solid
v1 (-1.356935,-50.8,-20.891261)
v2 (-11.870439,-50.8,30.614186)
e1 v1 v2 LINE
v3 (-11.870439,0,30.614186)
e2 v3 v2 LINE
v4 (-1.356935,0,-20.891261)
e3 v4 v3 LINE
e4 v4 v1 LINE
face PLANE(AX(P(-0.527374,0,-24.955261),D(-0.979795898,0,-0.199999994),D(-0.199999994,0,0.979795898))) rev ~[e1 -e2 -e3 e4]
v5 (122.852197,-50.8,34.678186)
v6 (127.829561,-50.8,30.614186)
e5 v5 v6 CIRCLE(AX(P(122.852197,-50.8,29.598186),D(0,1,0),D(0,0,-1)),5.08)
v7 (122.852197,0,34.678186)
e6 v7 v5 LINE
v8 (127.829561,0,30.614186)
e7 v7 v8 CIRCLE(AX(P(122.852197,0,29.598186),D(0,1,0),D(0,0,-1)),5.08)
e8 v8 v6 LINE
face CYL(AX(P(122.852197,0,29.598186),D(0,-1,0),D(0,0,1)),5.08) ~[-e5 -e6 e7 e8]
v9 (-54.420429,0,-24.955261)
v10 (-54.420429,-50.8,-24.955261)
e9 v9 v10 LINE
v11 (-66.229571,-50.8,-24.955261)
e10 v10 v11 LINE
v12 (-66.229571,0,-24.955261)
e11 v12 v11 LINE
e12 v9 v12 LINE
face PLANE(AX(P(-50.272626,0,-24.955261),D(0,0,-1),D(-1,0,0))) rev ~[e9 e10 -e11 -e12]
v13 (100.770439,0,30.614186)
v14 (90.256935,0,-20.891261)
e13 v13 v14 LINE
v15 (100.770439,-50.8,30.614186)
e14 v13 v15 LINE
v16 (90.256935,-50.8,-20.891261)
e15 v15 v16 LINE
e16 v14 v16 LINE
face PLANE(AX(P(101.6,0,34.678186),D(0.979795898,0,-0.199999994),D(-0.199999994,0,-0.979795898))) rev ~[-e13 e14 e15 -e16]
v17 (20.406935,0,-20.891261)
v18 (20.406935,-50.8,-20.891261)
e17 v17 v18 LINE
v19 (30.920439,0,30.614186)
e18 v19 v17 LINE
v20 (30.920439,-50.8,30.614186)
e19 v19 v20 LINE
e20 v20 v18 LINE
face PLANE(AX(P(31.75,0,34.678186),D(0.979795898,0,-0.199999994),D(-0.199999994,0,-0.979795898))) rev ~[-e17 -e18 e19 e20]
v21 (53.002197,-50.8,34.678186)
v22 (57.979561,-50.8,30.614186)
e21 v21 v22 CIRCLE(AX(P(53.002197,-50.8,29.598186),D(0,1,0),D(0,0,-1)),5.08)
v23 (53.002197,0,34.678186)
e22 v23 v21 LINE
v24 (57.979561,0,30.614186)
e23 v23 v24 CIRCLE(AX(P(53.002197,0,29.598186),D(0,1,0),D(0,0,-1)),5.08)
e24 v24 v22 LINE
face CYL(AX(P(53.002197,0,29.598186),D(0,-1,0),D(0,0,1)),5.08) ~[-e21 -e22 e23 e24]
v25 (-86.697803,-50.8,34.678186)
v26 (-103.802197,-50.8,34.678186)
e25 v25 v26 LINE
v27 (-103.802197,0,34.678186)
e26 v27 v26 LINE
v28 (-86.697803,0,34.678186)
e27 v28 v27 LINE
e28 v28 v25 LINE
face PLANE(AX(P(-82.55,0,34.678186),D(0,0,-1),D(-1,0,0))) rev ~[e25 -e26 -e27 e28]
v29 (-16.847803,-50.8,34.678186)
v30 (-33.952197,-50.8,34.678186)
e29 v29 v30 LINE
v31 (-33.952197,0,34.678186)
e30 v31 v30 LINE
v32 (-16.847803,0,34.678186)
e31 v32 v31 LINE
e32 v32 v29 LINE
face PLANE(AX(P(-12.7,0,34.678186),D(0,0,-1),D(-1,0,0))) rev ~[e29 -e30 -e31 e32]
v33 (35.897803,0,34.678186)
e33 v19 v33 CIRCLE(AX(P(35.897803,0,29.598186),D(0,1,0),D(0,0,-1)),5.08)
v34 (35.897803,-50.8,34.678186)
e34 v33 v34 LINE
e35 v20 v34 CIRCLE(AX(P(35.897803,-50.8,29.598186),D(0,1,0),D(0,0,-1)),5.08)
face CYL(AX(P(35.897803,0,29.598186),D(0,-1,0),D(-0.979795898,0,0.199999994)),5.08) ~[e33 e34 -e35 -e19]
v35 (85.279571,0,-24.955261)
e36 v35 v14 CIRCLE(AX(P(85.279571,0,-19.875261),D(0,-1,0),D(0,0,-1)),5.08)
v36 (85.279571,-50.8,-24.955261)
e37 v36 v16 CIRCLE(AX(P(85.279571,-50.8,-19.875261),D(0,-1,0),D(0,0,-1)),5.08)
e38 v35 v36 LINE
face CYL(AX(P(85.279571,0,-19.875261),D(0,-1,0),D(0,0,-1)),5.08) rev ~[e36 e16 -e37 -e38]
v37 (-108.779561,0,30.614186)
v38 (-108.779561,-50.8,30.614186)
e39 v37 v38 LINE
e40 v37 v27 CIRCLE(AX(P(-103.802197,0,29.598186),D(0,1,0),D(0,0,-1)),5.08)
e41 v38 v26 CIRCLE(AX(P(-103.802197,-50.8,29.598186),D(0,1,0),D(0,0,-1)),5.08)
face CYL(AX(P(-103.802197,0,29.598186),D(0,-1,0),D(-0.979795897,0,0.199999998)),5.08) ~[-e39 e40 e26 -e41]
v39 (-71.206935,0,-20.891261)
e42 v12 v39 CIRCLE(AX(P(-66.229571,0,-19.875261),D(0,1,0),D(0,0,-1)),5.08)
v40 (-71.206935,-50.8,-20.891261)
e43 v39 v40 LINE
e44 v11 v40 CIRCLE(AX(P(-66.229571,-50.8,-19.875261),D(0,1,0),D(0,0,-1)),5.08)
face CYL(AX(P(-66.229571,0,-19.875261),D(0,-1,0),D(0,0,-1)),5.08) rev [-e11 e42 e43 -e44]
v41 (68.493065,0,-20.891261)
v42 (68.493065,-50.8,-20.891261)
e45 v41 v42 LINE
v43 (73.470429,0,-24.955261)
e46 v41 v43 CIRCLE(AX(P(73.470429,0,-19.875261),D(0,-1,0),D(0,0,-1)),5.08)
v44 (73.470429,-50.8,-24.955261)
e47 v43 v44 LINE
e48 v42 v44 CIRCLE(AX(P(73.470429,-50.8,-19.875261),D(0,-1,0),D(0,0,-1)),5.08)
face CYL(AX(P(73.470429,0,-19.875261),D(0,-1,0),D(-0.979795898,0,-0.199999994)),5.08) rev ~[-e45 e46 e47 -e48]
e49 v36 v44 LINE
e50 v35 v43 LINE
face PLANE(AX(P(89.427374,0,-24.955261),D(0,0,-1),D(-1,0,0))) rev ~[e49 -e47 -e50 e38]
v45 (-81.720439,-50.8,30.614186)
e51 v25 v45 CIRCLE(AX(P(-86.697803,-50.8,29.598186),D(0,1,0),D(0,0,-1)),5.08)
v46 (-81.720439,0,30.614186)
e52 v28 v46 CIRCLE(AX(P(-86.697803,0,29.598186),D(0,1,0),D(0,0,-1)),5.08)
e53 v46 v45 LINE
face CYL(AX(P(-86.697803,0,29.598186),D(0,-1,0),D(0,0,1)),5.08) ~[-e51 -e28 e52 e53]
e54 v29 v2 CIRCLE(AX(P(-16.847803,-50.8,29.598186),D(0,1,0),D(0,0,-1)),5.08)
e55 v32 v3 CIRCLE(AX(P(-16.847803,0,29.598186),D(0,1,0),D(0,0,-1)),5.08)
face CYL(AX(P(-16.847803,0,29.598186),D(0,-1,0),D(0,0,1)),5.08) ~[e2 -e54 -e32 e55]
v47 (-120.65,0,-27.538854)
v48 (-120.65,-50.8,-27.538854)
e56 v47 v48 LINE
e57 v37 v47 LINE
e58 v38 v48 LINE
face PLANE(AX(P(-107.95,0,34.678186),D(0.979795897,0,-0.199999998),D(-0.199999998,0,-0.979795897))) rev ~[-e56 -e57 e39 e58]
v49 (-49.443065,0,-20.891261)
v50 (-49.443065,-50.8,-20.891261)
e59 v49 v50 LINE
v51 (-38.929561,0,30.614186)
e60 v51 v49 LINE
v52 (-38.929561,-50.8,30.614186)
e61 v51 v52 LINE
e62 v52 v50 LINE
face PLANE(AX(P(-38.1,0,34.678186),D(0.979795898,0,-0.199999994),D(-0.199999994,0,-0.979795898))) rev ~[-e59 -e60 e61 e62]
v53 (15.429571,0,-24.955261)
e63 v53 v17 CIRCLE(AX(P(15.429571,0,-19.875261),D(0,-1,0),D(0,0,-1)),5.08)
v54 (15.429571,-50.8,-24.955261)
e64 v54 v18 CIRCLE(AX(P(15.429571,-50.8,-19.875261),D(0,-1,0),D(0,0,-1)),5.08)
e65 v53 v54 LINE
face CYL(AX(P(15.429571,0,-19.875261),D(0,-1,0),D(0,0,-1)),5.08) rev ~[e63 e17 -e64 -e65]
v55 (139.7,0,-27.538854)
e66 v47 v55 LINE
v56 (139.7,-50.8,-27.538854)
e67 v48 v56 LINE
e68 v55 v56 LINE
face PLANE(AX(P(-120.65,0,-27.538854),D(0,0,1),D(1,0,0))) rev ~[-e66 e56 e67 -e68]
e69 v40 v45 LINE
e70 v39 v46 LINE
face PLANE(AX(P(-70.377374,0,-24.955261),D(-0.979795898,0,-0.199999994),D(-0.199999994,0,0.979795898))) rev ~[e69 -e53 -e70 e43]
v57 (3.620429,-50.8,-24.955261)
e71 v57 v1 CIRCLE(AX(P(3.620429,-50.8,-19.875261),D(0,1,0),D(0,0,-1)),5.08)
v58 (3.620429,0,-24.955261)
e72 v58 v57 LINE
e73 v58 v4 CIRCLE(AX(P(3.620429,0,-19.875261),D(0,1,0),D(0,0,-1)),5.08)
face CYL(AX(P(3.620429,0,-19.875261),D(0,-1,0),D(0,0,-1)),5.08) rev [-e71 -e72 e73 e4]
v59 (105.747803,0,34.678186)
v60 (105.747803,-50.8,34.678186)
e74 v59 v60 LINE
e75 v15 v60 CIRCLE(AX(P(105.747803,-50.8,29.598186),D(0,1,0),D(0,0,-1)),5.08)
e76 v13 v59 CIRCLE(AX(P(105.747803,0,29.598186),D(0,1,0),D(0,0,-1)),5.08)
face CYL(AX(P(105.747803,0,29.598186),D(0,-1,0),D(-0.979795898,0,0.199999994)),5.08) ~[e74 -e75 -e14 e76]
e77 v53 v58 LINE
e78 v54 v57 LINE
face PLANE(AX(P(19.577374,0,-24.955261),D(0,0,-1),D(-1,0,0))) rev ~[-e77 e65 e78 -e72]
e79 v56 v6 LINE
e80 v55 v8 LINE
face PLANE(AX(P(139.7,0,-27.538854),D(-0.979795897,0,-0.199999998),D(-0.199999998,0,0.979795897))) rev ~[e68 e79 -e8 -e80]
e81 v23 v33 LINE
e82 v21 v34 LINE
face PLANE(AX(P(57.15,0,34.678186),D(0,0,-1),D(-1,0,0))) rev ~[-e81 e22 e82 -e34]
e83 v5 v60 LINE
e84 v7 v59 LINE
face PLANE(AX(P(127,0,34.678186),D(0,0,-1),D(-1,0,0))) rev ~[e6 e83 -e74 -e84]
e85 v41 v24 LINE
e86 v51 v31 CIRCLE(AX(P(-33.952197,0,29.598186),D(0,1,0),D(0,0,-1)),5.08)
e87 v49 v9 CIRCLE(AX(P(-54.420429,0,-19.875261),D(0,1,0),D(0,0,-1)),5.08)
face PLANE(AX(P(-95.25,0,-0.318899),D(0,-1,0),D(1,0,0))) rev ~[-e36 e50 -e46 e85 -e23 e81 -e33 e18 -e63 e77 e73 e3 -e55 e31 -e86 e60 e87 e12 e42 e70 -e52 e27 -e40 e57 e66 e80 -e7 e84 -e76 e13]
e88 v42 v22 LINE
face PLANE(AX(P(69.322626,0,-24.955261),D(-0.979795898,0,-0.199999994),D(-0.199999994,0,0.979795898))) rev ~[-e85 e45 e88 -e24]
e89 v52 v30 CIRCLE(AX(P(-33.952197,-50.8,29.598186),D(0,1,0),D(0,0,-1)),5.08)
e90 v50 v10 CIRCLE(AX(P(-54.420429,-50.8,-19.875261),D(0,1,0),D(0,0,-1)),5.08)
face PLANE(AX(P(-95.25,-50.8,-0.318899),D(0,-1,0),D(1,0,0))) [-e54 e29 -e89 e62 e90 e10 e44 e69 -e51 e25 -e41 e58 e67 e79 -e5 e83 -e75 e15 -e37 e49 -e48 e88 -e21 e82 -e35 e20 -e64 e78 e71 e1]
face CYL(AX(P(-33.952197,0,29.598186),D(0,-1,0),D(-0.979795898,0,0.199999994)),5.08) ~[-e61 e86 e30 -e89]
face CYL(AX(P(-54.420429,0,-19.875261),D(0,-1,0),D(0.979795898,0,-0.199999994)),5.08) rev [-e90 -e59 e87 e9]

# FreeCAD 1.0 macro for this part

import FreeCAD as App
import Part
import Sketcher
from FreeCAD import Vector
Q = App.Units.Quantity


def edges_at(feature, points):
    """Names of the edges that pass closest to the given points."""
    edges = feature.Shape.Edges
    near = lambda p: min(range(len(edges)), key=lambda i: edges[i].distToShape(Part.Vertex(*p))[0])
    return sorted({f"Edge{near(p) + 1}" for p in points})


def add_polygon(sketch, points):
    """Adds a closed chain of lines whose ends are joined by coincident constraints."""
    first, n = sketch.GeometryCount, len(points)
    for a, b in zip(points, points[1:] + points[:1]):
        sketch.addGeometry(Part.LineSegment(App.Vector(*a, 0), App.Vector(*b, 0)), False)
    for i in range(n):
        sketch.addConstraint(Sketcher.Constraint("Coincident", first + i, 2, first + (i + 1) % n, 1))

doc = App.newDocument("Part")
body = doc.addObject("PartDesign::Body", "Body")

# Sketch on XZ plane
sketch1 = body.newObject("Sketcher::SketchObject", "Sketch")
sketch1.AttachmentSupport = (doc.getObject("XZ_Plane"), [""])
sketch1.MapMode = "FlatFace"
add_polygon(sketch1, [(-107.95, 34.678186), (-120.65, -27.538854), (139.7, -27.538854), (127, 34.678186), (101.6, 34.678186), (89.427374, -24.955261), (69.322626, -24.955261), (57.15, 34.678186), (31.75, 34.678186), (19.577374, -24.955261), (-0.527374, -24.955261), (-12.7, 34.678186), (-38.1, 34.678186), (-50.272626, -24.955261), (-70.377374, -24.955261), (-82.55, 34.678186)])  # lines 0-15
sketch1.addConstraint(Sketcher.Constraint("Horizontal", 1))
sketch1.addConstraint(Sketcher.Constraint("Horizontal", 3))
sketch1.addConstraint(Sketcher.Constraint("Horizontal", 5))
sketch1.addConstraint(Sketcher.Constraint("Horizontal", 7))
sketch1.addConstraint(Sketcher.Constraint("Horizontal", 9))
sketch1.addConstraint(Sketcher.Constraint("Horizontal", 11))
sketch1.addConstraint(Sketcher.Constraint("Horizontal", 13))
sketch1.addConstraint(Sketcher.Constraint("Horizontal", 15))
sketch1.addConstraint(Sketcher.Constraint("Parallel", 0, 4))
sketch1.addConstraint(Sketcher.Constraint("Parallel", 2, 6))
sketch1.addConstraint(Sketcher.Constraint("Parallel", 4, 8))
sketch1.addConstraint(Sketcher.Constraint("Parallel", 6, 10))
sketch1.addConstraint(Sketcher.Constraint("Parallel", 8, 12))
sketch1.addConstraint(Sketcher.Constraint("Parallel", 10, 14))
sketch1.addConstraint(Sketcher.Constraint("Horizontal", 3, 2, 6, 2))
sketch1.addConstraint(Sketcher.Constraint("Horizontal", 5, 2, 8, 2))
sketch1.addConstraint(Sketcher.Constraint("Horizontal", 7, 2, 10, 2))
sketch1.addConstraint(Sketcher.Constraint("Horizontal", 9, 2, 12, 2))
sketch1.addConstraint(Sketcher.Constraint("Horizontal", 11, 2, 14, 2))
sketch1.addConstraint(Sketcher.Constraint("Equal", 3, 7))
sketch1.addConstraint(Sketcher.Constraint("Equal", 5, 9))
sketch1.addConstraint(Sketcher.Constraint("Equal", 7, 11))
sketch1.addConstraint(Sketcher.Constraint("Equal", 9, 13))
sketch1.addConstraint(Sketcher.Constraint("Equal", 11, 15))
sketch1.addConstraint(Sketcher.Constraint("Equal", 0, 2))
sketch1.addConstraint(Sketcher.Constraint("DistanceX", 3, 2, 3, 1, Q("1 in")))
sketch1.addConstraint(Sketcher.Constraint("DistanceX", -1, 1, 2, 2, Q("5 in")))
sketch1.addConstraint(Sketcher.Constraint("Distance", 0, Q("2.5 in")))
sketch1.addConstraint(Sketcher.Constraint("DistanceX", 1, 1, 1, 2, Q("10.25 in")))
sketch1.addConstraint(Sketcher.Constraint("DistanceX", -1, 1, 1, 2, Q("5.5 in")))
sketch1.addConstraint(Sketcher.Constraint("DistanceX", 5, 2, 5, 1, 20.104748))
sketch1.addConstraint(Sketcher.Constraint("DistanceY", 4, 2, -1, 1, 24.955261))
pad1 = body.newObject("PartDesign::Pad", "Pad")
pad1.Profile = sketch1
pad1.Length = Q("2 in")
doc.recompute()

fillet = body.newObject("PartDesign::Fillet", "Fillet")
fillet.Base = (pad1, edges_at(pad1, [(-50.273, -25.4, -24.955)]))
fillet.Radius = Q("0.2 in")
doc.recompute()

fillet2 = body.newObject("PartDesign::Fillet", "Fillet001")
fillet2.Base = (fillet, edges_at(fillet, [(-70.377, -25.4, -24.955)]))
fillet2.Radius = Q("0.2 in")
doc.recompute()

fillet3 = body.newObject("PartDesign::Fillet", "Fillet002")
fillet3.Base = (fillet2, edges_at(fillet2, [(19.577, -25.4, -24.955)]))
fillet3.Radius = Q("0.2 in")
doc.recompute()

fillet4 = body.newObject("PartDesign::Fillet", "Fillet003")
fillet4.Base = (fillet3, edges_at(fillet3, [(-0.527, -25.4, -24.955)]))
fillet4.Radius = Q("0.2 in")
doc.recompute()

fillet5 = body.newObject("PartDesign::Fillet", "Fillet004")
fillet5.Base = (fillet4, edges_at(fillet4, [(69.323, -25.4, -24.955)]))
fillet5.Radius = Q("0.2 in")
doc.recompute()

fillet6 = body.newObject("PartDesign::Fillet", "Fillet005")
fillet6.Base = (fillet5, edges_at(fillet5, [(89.427, -25.4, -24.955)]))
fillet6.Radius = Q("0.2 in")
doc.recompute()

fillet7 = body.newObject("PartDesign::Fillet", "Fillet006")
fillet7.Base = (fillet6, edges_at(fillet6, [(-82.55, -25.4, 34.678)]))
fillet7.Radius = Q("0.2 in")
doc.recompute()

fillet8 = body.newObject("PartDesign::Fillet", "Fillet007")
fillet8.Base = (fillet7, edges_at(fillet7, [(-38.1, -25.4, 34.678)]))
fillet8.Radius = Q("0.2 in")
doc.recompute()

fillet9 = body.newObject("PartDesign::Fillet", "Fillet008")
fillet9.Base = (fillet8, edges_at(fillet8, [(-12.7, -25.4, 34.678)]))
fillet9.Radius = Q("0.2 in")
doc.recompute()

fillet10 = body.newObject("PartDesign::Fillet", "Fillet009")
fillet10.Base = (fillet9, edges_at(fillet9, [(31.75, -25.4, 34.678)]))
fillet10.Radius = Q("0.2 in")
doc.recompute()

fillet11 = body.newObject("PartDesign::Fillet", "Fillet010")
fillet11.Base = (fillet10, edges_at(fillet10, [(57.15, -25.4, 34.678)]))
fillet11.Radius = Q("0.2 in")
doc.recompute()

fillet12 = body.newObject("PartDesign::Fillet", "Fillet011")
fillet12.Base = (fillet11, edges_at(fillet11, [(101.6, -25.4, 34.678)]))
fillet12.Radius = Q("0.2 in")
doc.recompute()

fillet13 = body.newObject("PartDesign::Fillet", "Fillet012")
fillet13.Base = (fillet12, edges_at(fillet12, [(127, -25.4, 34.678)]))
fillet13.Radius = Q("0.2 in")
doc.recompute()

fillet14 = body.newObject("PartDesign::Fillet", "Fillet013")
fillet14.Base = (fillet13, edges_at(fillet13, [(-107.95, -25.4, 34.678)]))
fillet14.Radius = Q("0.2 in")

doc.recompute()
